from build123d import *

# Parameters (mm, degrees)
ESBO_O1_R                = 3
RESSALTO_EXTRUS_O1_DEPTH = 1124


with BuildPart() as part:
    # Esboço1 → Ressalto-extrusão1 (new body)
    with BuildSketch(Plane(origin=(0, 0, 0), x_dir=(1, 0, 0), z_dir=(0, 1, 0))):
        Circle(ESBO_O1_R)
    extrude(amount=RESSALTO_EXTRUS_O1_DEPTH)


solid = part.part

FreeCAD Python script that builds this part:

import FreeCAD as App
import Part
import Sketcher
from FreeCAD import Vector

doc = App.newDocument("Part")
body = doc.addObject("PartDesign::Body", "Body")

# Sketch on XZ plane
sketch1 = body.newObject("Sketcher::SketchObject", "Sketch")
sketch1.AttachmentSupport = (doc.getObject("XZ_Plane"), [""])
sketch1.MapMode = "FlatFace"
sketch1.addGeometry(Part.Circle(Vector(0, 0, 0), Vector(0, 0, 1), 3), False)
sketch1.addConstraint(Sketcher.Constraint("Coincident", 0, 3, -1, 1))
sketch1.addConstraint(Sketcher.Constraint("Diameter", 0, 6.0))
pad1 = body.newObject("PartDesign::Pad", "Pad")
pad1.Profile = sketch1
pad1.Length = 1124
pad1.Reversed = True

doc.recompute()
